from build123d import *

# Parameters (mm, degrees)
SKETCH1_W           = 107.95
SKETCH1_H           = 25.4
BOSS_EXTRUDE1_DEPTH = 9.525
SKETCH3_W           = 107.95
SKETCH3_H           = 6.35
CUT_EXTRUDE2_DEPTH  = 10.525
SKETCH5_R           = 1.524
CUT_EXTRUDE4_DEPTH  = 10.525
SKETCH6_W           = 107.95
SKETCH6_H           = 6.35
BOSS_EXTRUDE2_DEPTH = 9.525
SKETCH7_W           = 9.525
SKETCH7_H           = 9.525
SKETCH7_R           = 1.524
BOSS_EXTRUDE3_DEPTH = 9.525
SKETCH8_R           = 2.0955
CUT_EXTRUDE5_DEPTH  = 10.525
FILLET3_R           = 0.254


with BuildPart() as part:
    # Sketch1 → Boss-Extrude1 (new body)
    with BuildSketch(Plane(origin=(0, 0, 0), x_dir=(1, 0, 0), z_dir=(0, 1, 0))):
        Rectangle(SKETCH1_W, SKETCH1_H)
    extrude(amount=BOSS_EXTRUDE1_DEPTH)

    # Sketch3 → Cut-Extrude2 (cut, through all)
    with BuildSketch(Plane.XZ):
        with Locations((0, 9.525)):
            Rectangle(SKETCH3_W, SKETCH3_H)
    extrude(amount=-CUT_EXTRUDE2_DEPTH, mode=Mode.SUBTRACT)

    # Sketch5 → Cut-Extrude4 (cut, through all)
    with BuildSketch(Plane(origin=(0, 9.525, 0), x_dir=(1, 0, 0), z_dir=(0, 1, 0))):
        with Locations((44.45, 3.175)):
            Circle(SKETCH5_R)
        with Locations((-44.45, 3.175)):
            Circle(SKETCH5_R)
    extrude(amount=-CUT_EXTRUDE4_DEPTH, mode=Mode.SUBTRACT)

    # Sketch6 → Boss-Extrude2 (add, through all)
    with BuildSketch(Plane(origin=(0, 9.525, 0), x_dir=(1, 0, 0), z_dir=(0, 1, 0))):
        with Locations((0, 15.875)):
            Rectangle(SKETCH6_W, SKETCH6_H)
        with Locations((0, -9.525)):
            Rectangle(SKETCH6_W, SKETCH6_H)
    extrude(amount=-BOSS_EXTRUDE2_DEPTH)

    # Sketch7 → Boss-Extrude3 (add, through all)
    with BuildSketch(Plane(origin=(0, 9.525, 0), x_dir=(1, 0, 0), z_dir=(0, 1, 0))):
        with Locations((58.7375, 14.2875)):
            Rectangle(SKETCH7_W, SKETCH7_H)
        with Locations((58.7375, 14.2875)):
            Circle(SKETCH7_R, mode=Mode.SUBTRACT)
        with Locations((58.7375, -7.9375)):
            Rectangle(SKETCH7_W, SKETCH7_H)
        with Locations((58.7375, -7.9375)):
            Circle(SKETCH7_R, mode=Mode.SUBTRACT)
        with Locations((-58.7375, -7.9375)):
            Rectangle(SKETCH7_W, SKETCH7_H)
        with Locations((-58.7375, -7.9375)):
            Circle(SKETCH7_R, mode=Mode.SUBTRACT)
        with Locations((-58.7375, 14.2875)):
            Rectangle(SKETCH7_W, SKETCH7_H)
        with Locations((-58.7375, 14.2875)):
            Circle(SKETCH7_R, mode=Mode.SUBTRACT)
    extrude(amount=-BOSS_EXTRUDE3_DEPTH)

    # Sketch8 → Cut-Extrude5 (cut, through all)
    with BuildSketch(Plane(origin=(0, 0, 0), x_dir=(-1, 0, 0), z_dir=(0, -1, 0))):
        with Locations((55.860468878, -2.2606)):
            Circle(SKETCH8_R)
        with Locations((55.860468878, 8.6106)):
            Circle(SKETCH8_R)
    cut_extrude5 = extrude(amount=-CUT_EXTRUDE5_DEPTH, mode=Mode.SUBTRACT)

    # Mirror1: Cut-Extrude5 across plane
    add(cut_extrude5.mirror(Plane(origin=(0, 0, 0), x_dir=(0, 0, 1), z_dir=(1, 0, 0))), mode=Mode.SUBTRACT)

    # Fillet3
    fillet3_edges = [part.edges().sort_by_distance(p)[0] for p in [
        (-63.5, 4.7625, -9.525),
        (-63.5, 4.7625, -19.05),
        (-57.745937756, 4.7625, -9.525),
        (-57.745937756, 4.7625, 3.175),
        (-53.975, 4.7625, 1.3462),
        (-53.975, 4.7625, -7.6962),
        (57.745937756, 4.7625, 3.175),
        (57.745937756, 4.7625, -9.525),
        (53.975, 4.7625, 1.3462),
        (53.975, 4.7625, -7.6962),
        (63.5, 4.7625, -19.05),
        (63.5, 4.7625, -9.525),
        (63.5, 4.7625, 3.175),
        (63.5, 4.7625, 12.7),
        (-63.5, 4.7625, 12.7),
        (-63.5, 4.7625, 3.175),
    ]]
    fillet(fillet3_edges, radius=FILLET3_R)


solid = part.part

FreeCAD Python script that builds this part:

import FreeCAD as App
import Part
import Sketcher

V = App.Vector
Q = App.Units.Quantity


def edges_at(feature, points):
    """Names of the edges that pass closest to the given points."""
    edges = feature.Shape.Edges
    near = lambda p: min(range(len(edges)), key=lambda i: edges[i].distToShape(Part.Vertex(*p))[0])
    return sorted({f"Edge{near(p) + 1}" for p in points})

doc = App.newDocument("Part")
body = doc.addObject("PartDesign::Body", "Body")

sketch1 = body.newObject("Sketcher::SketchObject", "Sketch")
sketch1.AttachmentSupport = (doc.getObject("XZ_Plane"), [""])
sketch1.MapMode = "FlatFace"
sketch1.addGeometry([
    Part.LineSegment(V(-54, -13, 0), V(-54, 13, 0)),
    Part.LineSegment(V(-54, 13, 0), V(54, 13, 0)),
    Part.LineSegment(V(54, 13, 0), V(54, -13, 0)),
    Part.LineSegment(V(54, -13, 0), V(-54, -13, 0)),
], False)
sketch1.addConstraint([
    Sketcher.Constraint("Coincident", 0, 2, 1, 1),
    Sketcher.Constraint("Coincident", 1, 2, 2, 1),
    Sketcher.Constraint("Coincident", 2, 2, 3, 1),
    Sketcher.Constraint("Coincident", 3, 2, 0, 1),
    Sketcher.Constraint("Vertical", 0),
    Sketcher.Constraint("Horizontal", 1),
    Sketcher.Constraint("Vertical", 2),
    Sketcher.Constraint("Horizontal", 3),
    Sketcher.Constraint("Symmetric", 0, 2, 2, 2, -1, 1),
    Sketcher.Constraint("DistanceY", 0, 1, 0, 2, Q("1 in")),
    Sketcher.Constraint("DistanceX", 1, 1, 1, 2, Q("4.25 in")),
])
pad1 = body.newObject("PartDesign::Pad", "Pad")
pad1.Profile = sketch1
pad1.Length = Q("0.375 in")
pad1.Reversed = True

sketch2 = body.newObject("Sketcher::SketchObject", "Sketch001")
sketch2.AttachmentSupport = (doc.getObject("XZ_Plane"), [""])
sketch2.MapMode = "FlatFace"
sketch2.addGeometry([
    Part.LineSegment(V(-54, 13, 0), V(-54, 6, 0)),
    Part.LineSegment(V(-54, 6, 0), V(54, 6, 0)),
    Part.LineSegment(V(54, 6, 0), V(54, 13, 0)),
    Part.LineSegment(V(54, 13, 0), V(-54, 13, 0)),
], False)
sketch2.addConstraint([
    Sketcher.Constraint("Coincident", 0, 2, 1, 1),
    Sketcher.Constraint("Coincident", 1, 2, 2, 1),
    Sketcher.Constraint("Coincident", 2, 2, 3, 1),
    Sketcher.Constraint("Coincident", 3, 2, 0, 1),
    Sketcher.Constraint("Vertical", 0),
    Sketcher.Constraint("Horizontal", 1),
    Sketcher.Constraint("Vertical", 2),
    Sketcher.Constraint("Horizontal", 3),
    Sketcher.Constraint("DistanceX", 1, 1, 1, 2, Q("4.25 in")),
    Sketcher.Constraint("DistanceY", 0, 2, 0, 1, Q("0.25 in")),
    Sketcher.Constraint("DistanceY", -1, 1, 2, 2, Q("0.5 in")),
    Sketcher.Constraint("DistanceX", 0, 2, -1, 1, Q("2.125 in")),
])
pocket1 = body.newObject("PartDesign::Pocket", "Pocket")
pocket1.Profile = sketch2
pocket1.Type = "ThroughAll"

sketch3 = body.newObject("Sketcher::SketchObject", "Sketch002")
sketch3.AttachmentSupport = (doc.getObject("XZ_Plane"), [""])
sketch3.MapMode = "FlatFace"
sketch3.AttachmentOffset = App.Placement(V(0, 0, -0.375 * 25.4), App.Rotation())
sketch3.addGeometry([
    Part.Circle(V(44.5, -3.2, 0), V(0, 0, 1), 1.5),
    Part.Circle(V(-44.5, -3.2, 0), V(0, 0, 1), 1.5),
], False)
sketch3.addConstraint([
    Sketcher.Constraint("Equal", 0, 1),
    Sketcher.Constraint("Symmetric", 0, 3, 1, 3, -2),
    Sketcher.Constraint("Diameter", 0, Q("0.12 in")),
    Sketcher.Constraint("DistanceX", 1, 3, 0, 3, Q("3.5 in")),
    Sketcher.Constraint("DistanceY", 0, 3, -1, 1, Q("0.125 in")),
])
pocket2 = body.newObject("PartDesign::Pocket", "Pocket001")
pocket2.Profile = sketch3
pocket2.Type = "ThroughAll"
pocket2.Reversed = True

sketch4 = body.newObject("Sketcher::SketchObject", "Sketch003")
sketch4.AttachmentSupport = (doc.getObject("XZ_Plane"), [""])
sketch4.MapMode = "FlatFace"
sketch4.AttachmentOffset = App.Placement(V(0, 0, -0.375 * 25.4), App.Rotation())
sketch4.addGeometry([
    Part.LineSegment(V(-54, -19, 0), V(-54, -13, 0)),
    Part.LineSegment(V(-54, -13, 0), V(54, -13, 0)),
    Part.LineSegment(V(54, -13, 0), V(54, -19, 0)),
    Part.LineSegment(V(54, -19, 0), V(-54, -19, 0)),
    Part.LineSegment(V(-54, 6, 0), V(-54, 13, 0)),
    Part.LineSegment(V(-54, 13, 0), V(54, 13, 0)),
    Part.LineSegment(V(54, 13, 0), V(54, 6, 0)),
    Part.LineSegment(V(54, 6, 0), V(-54, 6, 0)),
], False)
sketch4.addConstraint([
    Sketcher.Constraint("Coincident", 0, 2, 1, 1),
    Sketcher.Constraint("Coincident", 1, 2, 2, 1),
    Sketcher.Constraint("Coincident", 2, 2, 3, 1),
    Sketcher.Constraint("Coincident", 3, 2, 0, 1),
    Sketcher.Constraint("Coincident", 4, 2, 5, 1),
    Sketcher.Constraint("Coincident", 5, 2, 6, 1),
    Sketcher.Constraint("Coincident", 6, 2, 7, 1),
    Sketcher.Constraint("Coincident", 7, 2, 4, 1),
    Sketcher.Constraint("Vertical", 0),
    Sketcher.Constraint("Horizontal", 1),
    Sketcher.Constraint("Vertical", 2),
    Sketcher.Constraint("Horizontal", 3),
    Sketcher.Constraint("Vertical", 4),
    Sketcher.Constraint("Horizontal", 5),
    Sketcher.Constraint("Vertical", 6),
    Sketcher.Constraint("Horizontal", 7),
    Sketcher.Constraint("Symmetric", 1, 2, 4, 2, -1, 1),
    Sketcher.Constraint("Vertical", 3, 2, 4, 2),
    Sketcher.Constraint("Vertical", 2, 2, 5, 2),
    Sketcher.Constraint("Equal", 2, 4),
    Sketcher.Constraint("DistanceY", 0, 2, 4, 2, Q("1 in")),
    Sketcher.Constraint("DistanceX", 1, 1, 1, 2, Q("4.25 in")),
    Sketcher.Constraint("DistanceY", 0, 1, 0, 2, Q("0.25 in")),
])
pad2 = body.newObject("PartDesign::Pad", "Pad001")
pad2.Profile = sketch4
pad2.Type = "UpToLast"

sketch5 = body.newObject("Sketcher::SketchObject", "Sketch004")
sketch5.AttachmentSupport = (doc.getObject("XZ_Plane"), [""])
sketch5.MapMode = "FlatFace"
sketch5.AttachmentOffset = App.Placement(V(0, 0, -0.375 * 25.4), App.Rotation())
sketch5.addGeometry([
    Part.LineSegment(V(54, -19.1, 0), V(54, -9.5, 0)),
    Part.LineSegment(V(54, -9.5, 0), V(63.5, -9.5, 0)),
    Part.LineSegment(V(63.5, -9.5, 0), V(63.5, -19.1, 0)),
    Part.LineSegment(V(63.5, -19.1, 0), V(54, -19.1, 0)),
    Part.Circle(V(58.7, -14.3, 0), V(0, 0, 1), 1.5),
    Part.LineSegment(V(54, 3.2, 0), V(54, 12.7, 0)),
    Part.LineSegment(V(54, 12.7, 0), V(63.5, 12.7, 0)),
    Part.LineSegment(V(63.5, 12.7, 0), V(63.5, 3.2, 0)),
    Part.LineSegment(V(63.5, 3.2, 0), V(54, 3.2, 0)),
    Part.Circle(V(58.7, 7.9, 0), V(0, 0, 1), 1.5),
    Part.LineSegment(V(-63.5, 3.2, 0), V(-63.5, 12.7, 0)),
    Part.LineSegment(V(-63.5, 12.7, 0), V(-54, 12.7, 0)),
    Part.LineSegment(V(-54, 12.7, 0), V(-54, 3.2, 0)),
    Part.LineSegment(V(-54, 3.2, 0), V(-63.5, 3.2, 0)),
    Part.Circle(V(-58.7, 7.9, 0), V(0, 0, 1), 1.5),
    Part.LineSegment(V(-63.5, -19.1, 0), V(-63.5, -9.5, 0)),
    Part.LineSegment(V(-63.5, -9.5, 0), V(-54, -9.5, 0)),
    Part.LineSegment(V(-54, -9.5, 0), V(-54, -19.1, 0)),
    Part.LineSegment(V(-54, -19.1, 0), V(-63.5, -19.1, 0)),
    Part.Circle(V(-58.7, -14.3, 0), V(0, 0, 1), 1.5),
], False)
sketch5.addConstraint([
    Sketcher.Constraint("Coincident", 0, 2, 1, 1),
    Sketcher.Constraint("Coincident", 1, 2, 2, 1),
    Sketcher.Constraint("Coincident", 2, 2, 3, 1),
    Sketcher.Constraint("Coincident", 3, 2, 0, 1),
    Sketcher.Constraint("Coincident", 5, 2, 6, 1),
    Sketcher.Constraint("Coincident", 6, 2, 7, 1),
    Sketcher.Constraint("Coincident", 7, 2, 8, 1),
    Sketcher.Constraint("Coincident", 8, 2, 5, 1),
    Sketcher.Constraint("Coincident", 10, 2, 11, 1),
    Sketcher.Constraint("Coincident", 11, 2, 12, 1),
    Sketcher.Constraint("Coincident", 12, 2, 13, 1),
    Sketcher.Constraint("Coincident", 13, 2, 10, 1),
    Sketcher.Constraint("Coincident", 15, 2, 16, 1),
    Sketcher.Constraint("Coincident", 16, 2, 17, 1),
    Sketcher.Constraint("Coincident", 17, 2, 18, 1),
    Sketcher.Constraint("Coincident", 18, 2, 15, 1),
    Sketcher.Constraint("Vertical", 0),
    Sketcher.Constraint("Horizontal", 1),
    Sketcher.Constraint("Vertical", 2),
    Sketcher.Constraint("Horizontal", 3),
    Sketcher.Constraint("Vertical", 5),
    Sketcher.Constraint("Horizontal", 6),
    Sketcher.Constraint("Vertical", 7),
    Sketcher.Constraint("Horizontal", 8),
    Sketcher.Constraint("Vertical", 10),
    Sketcher.Constraint("Horizontal", 11),
    Sketcher.Constraint("Vertical", 12),
    Sketcher.Constraint("Horizontal", 13),
    Sketcher.Constraint("Vertical", 15),
    Sketcher.Constraint("Horizontal", 16),
    Sketcher.Constraint("Vertical", 17),
    Sketcher.Constraint("Horizontal", 18),
    Sketcher.Constraint("Equal", 4, 9),
    Sketcher.Constraint("Equal", 9, 14),
    Sketcher.Constraint("Equal", 14, 19),
    Sketcher.Constraint("Symmetric", 9, 3, 14, 3, -2),
    Sketcher.Constraint("Symmetric", 4, 3, 19, 3, -2),
    Sketcher.Constraint("Symmetric", 6, 2, 10, 2, -2),
    Sketcher.Constraint("Symmetric", 8, 2, 12, 2, -2),
    Sketcher.Constraint("Symmetric", 1, 2, 15, 2, -2),
    Sketcher.Constraint("Symmetric", 3, 2, 17, 2, -2),
    Sketcher.Constraint("Vertical", 4, 3, 9, 3),
    Sketcher.Constraint("Vertical", 3, 2, 5, 2),
    Sketcher.Constraint("Vertical", 2, 2, 6, 2),
    Sketcher.Constraint("Equal", 18, 0),
    Sketcher.Constraint("Equal", 2, 5),
    Sketcher.Constraint("Diameter", 4, Q("0.12 in")),
    Sketcher.Constraint("DistanceX", -1, 1, 1, 2, Q("2.5 in")),
    Sketcher.Constraint("DistanceY", -1, 1, 5, 2, Q("0.5 in")),
    Sketcher.Constraint("DistanceY", 1, 2, 7, 2, Q("0.5 in")),
    Sketcher.Constraint("DistanceX", 1, 1, 1, 2, Q("0.375 in")),
    Sketcher.Constraint("DistanceX", -1, 1, 4, 3, Q("2.3125 in")),
    Sketcher.Constraint("DistanceY", 4, 3, -1, 1, Q("0.5625 in")),
    Sketcher.Constraint("DistanceY", -1, 1, 9, 3, Q("0.3125 in")),
])
pad3 = body.newObject("PartDesign::Pad", "Pad002")
pad3.Profile = sketch5
pad3.Type = "UpToLast"

sketch6 = body.newObject("Sketcher::SketchObject", "Sketch005")
sketch6.AttachmentSupport = (doc.getObject("XZ_Plane"), [""])
sketch6.MapMode = "FlatFace"
sketch6.addGeometry([
    Part.Circle(V(-55.9, 2.3, 0), V(0, 0, 1), 2.1),
    Part.Circle(V(-55.9, -8.6, 0), V(0, 0, 1), 2.1),
], False)
sketch6.addConstraint([
    Sketcher.Constraint("Equal", 0, 1),
    Sketcher.Constraint("Vertical", 0, 3, 1, 3),
    Sketcher.Constraint("Diameter", 0, Q("0.165 in")),
    Sketcher.Constraint("DistanceY", -1, 1, 0, 3, Q("0.089 in")),
    Sketcher.Constraint("DistanceY", 1, 3, -1, 1, Q("0.339 in")),
    Sketcher.Constraint("DistanceX", 0, 3, -1, 1, 55.860469),
])
pocket3 = body.newObject("PartDesign::Pocket", "Pocket002")
pocket3.Profile = sketch6
pocket3.Type = "ThroughAll"
doc.recompute()

mirrored = body.newObject("PartDesign::Mirrored", "Mirrored")
mirrored.Originals = [pocket3]
mirrored.MirrorPlane = (doc.getObject("YZ_Plane"), [""])
body.Tip = mirrored
doc.recompute()

fillet = body.newObject("PartDesign::Fillet", "Fillet")
fillet.Base = (mirrored, edges_at(mirrored, [
    (-63.5, 4.763, -9.525),
    (-63.5, 4.763, -19.05),
    (-57.746, 4.763, -9.525),
    (-57.746, 4.763, 3.175),
    (-53.975, 4.763, 1.346),
    (-53.975, 4.763, -7.696),
    (57.746, 4.763, 3.175),
    (57.746, 4.763, -9.525),
    (53.975, 4.763, 1.346),
    (53.975, 4.763, -7.696),
    (63.5, 4.763, -19.05),
    (63.5, 4.763, -9.525),
    (63.5, 4.763, 3.175),
    (63.5, 4.763, 12.7),
    (-63.5, 4.763, 12.7),
    (-63.5, 4.763, 3.175),
]))
fillet.Radius = Q("0.01 in")

doc.recompute()
